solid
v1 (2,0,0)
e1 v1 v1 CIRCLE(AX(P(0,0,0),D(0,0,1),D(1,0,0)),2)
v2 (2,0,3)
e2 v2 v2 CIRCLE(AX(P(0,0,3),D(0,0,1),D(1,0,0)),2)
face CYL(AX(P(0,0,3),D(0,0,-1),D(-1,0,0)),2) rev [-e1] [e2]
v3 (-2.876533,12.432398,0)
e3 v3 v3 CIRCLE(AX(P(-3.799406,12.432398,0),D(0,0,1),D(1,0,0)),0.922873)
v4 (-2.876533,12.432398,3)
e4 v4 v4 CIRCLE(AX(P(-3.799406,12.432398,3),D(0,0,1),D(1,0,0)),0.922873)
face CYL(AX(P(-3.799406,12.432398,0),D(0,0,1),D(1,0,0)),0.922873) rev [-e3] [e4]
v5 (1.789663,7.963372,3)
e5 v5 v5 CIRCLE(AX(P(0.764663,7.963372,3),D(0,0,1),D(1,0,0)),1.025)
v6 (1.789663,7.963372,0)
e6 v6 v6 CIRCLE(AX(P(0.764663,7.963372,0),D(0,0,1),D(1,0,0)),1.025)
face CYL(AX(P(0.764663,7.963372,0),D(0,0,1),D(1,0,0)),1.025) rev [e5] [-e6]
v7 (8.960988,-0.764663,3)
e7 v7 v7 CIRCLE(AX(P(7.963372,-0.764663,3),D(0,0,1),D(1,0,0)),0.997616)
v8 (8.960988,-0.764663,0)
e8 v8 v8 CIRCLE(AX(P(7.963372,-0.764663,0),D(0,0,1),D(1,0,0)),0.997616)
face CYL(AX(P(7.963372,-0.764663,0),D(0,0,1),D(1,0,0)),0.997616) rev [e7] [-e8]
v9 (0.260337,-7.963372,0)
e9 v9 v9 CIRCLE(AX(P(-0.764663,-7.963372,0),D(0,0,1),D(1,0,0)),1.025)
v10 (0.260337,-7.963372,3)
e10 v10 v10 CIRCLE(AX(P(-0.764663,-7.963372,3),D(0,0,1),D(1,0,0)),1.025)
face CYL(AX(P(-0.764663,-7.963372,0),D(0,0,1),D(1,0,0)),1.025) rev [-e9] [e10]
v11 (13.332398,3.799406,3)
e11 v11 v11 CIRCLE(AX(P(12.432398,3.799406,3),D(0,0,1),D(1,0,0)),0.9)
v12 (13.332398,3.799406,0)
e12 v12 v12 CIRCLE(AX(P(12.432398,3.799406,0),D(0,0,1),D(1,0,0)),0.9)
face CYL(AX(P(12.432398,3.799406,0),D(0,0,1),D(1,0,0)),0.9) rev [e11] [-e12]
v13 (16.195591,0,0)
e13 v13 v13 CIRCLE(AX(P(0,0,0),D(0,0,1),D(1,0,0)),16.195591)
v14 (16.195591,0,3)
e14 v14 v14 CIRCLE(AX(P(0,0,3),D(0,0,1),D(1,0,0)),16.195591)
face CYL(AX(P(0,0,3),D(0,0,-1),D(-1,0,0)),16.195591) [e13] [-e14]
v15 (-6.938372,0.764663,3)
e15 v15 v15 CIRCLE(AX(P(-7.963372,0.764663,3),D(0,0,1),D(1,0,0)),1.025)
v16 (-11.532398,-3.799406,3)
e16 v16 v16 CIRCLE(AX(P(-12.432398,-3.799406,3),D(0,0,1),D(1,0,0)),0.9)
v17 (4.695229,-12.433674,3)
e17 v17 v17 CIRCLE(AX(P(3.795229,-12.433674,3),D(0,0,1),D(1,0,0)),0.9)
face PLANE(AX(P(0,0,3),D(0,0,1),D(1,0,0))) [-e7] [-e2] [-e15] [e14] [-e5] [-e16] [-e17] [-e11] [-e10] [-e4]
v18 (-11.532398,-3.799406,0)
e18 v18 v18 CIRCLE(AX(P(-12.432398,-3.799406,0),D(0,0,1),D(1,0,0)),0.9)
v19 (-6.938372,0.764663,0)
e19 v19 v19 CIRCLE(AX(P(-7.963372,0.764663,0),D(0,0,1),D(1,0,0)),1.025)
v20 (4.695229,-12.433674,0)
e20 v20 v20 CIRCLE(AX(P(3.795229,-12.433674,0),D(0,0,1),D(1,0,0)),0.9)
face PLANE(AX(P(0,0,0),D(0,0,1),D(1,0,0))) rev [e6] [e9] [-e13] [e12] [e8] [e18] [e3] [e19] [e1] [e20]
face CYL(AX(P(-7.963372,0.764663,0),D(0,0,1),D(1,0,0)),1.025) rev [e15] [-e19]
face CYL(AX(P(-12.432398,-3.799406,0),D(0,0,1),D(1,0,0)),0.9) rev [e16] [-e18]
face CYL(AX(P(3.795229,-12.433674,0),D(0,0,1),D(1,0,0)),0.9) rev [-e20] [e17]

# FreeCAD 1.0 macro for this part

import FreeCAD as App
import Part
import Sketcher
Q = App.Units.Quantity

doc = App.newDocument("Part")
body = doc.addObject("PartDesign::Body", "Body")

sketch1 = body.newObject("Sketcher::SketchObject", "Sketch")
sketch1.AttachmentSupport = (doc.getObject("XY_Plane"), [""])
sketch1.MapMode = "FlatFace"
sketch1.addGeometry([
    Part.Circle(App.Vector(0, 0, 0), App.Vector(0, 0, 1), 16.2),
    Part.Circle(App.Vector(0, 0, 0), App.Vector(0, 0, 1), 2),
], False)
sketch1.addConstraint([
    Sketcher.Constraint("Coincident", 0, 3, -1, 1),
    Sketcher.Constraint("Coincident", 1, 3, -1, 1),
    Sketcher.Constraint("Diameter", 1, Q("4 mm")),
    Sketcher.Constraint("Diameter", 0, Q("32.391181 mm")),
])
pad1 = body.newObject("PartDesign::Pad", "Pad")
pad1.Profile = sketch1
pad1.Length = 3

sketch2 = body.newObject("Sketcher::SketchObject", "Sketch001")
sketch2.AttachmentSupport = (doc.getObject("XY_Plane"), [""])
sketch2.MapMode = "FlatFace"
sketch2.AttachmentOffset = App.Placement(App.Vector(0, 0, 3), App.Rotation())
sketch2.addGeometry([
    Part.Circle(App.Vector(8, -0.8, 0), App.Vector(0, 0, 1), 1),
    Part.Circle(App.Vector(0.8, 8, 0), App.Vector(0, 0, 1), 1),
    Part.Circle(App.Vector(-8, 0.8, 0), App.Vector(0, 0, 1), 1),
    Part.Circle(App.Vector(-0.8, -8, 0), App.Vector(0, 0, 1), 1),
    Part.Circle(App.Vector(-3.8, 12.4, 0), App.Vector(0, 0, 1), 0.9),
    Part.Circle(App.Vector(12.4, 3.8, 0), App.Vector(0, 0, 1), 0.9),
    Part.Circle(App.Vector(3.8, -12.4, 0), App.Vector(0, 0, 1), 0.9),
    Part.Circle(App.Vector(-12.4, -3.8, 0), App.Vector(0, 0, 1), 0.9),
], False)
sketch2.addConstraint([
    Sketcher.Constraint("Equal", 1, 2),
    Sketcher.Constraint("Equal", 2, 3),
    Sketcher.Constraint("Equal", 5, 6),
    Sketcher.Constraint("Equal", 6, 7),
    Sketcher.Constraint("Symmetric", 0, 3, 2, 3, -1, 1),
    Sketcher.Constraint("Symmetric", 1, 3, 3, 3, -1, 1),
    Sketcher.Constraint("Symmetric", 5, 3, 7, 3, -1, 1),
    Sketcher.Constraint("Diameter", 5, Q("1.8 mm")),
    Sketcher.Constraint("Diameter", 1, Q("2.05 mm")),
    Sketcher.Constraint("Diameter", 0, Q("1.995232 mm")),
    Sketcher.Constraint("Diameter", 4, Q("1.845746 mm")),
    Sketcher.Constraint("DistanceY", 6, 3, 3, 3, Q("4.470302 mm")),
    Sketcher.Constraint("DistanceX", 2, 3, 6, 3, Q("11.758601 mm")),
    Sketcher.Constraint("DistanceX", -1, 1, 0, 3, Q("7.963372 mm")),
    Sketcher.Constraint("DistanceY", -1, 1, 1, 3, Q("7.963372 mm")),
    Sketcher.Constraint("DistanceX", 1, 3, 0, 3, Q("7.198709 mm")),
    Sketcher.Constraint("DistanceY", 2, 3, 1, 3, Q("7.198709 mm")),
    Sketcher.Constraint("DistanceX", 4, 3, 1, 3, Q("4.564069 mm")),
    Sketcher.Constraint("DistanceY", 0, 3, 4, 3, Q("13.19706 mm")),
    Sketcher.Constraint("DistanceY", 0, 3, 5, 3, Q("4.564069 mm")),
    Sketcher.Constraint("DistanceX", 3, 3, 5, 3, Q("13.19706 mm")),
])
pocket1 = body.newObject("PartDesign::Pocket", "Pocket")
pocket1.Profile = sketch2
pocket1.Type = "ThroughAll"

doc.recompute()
